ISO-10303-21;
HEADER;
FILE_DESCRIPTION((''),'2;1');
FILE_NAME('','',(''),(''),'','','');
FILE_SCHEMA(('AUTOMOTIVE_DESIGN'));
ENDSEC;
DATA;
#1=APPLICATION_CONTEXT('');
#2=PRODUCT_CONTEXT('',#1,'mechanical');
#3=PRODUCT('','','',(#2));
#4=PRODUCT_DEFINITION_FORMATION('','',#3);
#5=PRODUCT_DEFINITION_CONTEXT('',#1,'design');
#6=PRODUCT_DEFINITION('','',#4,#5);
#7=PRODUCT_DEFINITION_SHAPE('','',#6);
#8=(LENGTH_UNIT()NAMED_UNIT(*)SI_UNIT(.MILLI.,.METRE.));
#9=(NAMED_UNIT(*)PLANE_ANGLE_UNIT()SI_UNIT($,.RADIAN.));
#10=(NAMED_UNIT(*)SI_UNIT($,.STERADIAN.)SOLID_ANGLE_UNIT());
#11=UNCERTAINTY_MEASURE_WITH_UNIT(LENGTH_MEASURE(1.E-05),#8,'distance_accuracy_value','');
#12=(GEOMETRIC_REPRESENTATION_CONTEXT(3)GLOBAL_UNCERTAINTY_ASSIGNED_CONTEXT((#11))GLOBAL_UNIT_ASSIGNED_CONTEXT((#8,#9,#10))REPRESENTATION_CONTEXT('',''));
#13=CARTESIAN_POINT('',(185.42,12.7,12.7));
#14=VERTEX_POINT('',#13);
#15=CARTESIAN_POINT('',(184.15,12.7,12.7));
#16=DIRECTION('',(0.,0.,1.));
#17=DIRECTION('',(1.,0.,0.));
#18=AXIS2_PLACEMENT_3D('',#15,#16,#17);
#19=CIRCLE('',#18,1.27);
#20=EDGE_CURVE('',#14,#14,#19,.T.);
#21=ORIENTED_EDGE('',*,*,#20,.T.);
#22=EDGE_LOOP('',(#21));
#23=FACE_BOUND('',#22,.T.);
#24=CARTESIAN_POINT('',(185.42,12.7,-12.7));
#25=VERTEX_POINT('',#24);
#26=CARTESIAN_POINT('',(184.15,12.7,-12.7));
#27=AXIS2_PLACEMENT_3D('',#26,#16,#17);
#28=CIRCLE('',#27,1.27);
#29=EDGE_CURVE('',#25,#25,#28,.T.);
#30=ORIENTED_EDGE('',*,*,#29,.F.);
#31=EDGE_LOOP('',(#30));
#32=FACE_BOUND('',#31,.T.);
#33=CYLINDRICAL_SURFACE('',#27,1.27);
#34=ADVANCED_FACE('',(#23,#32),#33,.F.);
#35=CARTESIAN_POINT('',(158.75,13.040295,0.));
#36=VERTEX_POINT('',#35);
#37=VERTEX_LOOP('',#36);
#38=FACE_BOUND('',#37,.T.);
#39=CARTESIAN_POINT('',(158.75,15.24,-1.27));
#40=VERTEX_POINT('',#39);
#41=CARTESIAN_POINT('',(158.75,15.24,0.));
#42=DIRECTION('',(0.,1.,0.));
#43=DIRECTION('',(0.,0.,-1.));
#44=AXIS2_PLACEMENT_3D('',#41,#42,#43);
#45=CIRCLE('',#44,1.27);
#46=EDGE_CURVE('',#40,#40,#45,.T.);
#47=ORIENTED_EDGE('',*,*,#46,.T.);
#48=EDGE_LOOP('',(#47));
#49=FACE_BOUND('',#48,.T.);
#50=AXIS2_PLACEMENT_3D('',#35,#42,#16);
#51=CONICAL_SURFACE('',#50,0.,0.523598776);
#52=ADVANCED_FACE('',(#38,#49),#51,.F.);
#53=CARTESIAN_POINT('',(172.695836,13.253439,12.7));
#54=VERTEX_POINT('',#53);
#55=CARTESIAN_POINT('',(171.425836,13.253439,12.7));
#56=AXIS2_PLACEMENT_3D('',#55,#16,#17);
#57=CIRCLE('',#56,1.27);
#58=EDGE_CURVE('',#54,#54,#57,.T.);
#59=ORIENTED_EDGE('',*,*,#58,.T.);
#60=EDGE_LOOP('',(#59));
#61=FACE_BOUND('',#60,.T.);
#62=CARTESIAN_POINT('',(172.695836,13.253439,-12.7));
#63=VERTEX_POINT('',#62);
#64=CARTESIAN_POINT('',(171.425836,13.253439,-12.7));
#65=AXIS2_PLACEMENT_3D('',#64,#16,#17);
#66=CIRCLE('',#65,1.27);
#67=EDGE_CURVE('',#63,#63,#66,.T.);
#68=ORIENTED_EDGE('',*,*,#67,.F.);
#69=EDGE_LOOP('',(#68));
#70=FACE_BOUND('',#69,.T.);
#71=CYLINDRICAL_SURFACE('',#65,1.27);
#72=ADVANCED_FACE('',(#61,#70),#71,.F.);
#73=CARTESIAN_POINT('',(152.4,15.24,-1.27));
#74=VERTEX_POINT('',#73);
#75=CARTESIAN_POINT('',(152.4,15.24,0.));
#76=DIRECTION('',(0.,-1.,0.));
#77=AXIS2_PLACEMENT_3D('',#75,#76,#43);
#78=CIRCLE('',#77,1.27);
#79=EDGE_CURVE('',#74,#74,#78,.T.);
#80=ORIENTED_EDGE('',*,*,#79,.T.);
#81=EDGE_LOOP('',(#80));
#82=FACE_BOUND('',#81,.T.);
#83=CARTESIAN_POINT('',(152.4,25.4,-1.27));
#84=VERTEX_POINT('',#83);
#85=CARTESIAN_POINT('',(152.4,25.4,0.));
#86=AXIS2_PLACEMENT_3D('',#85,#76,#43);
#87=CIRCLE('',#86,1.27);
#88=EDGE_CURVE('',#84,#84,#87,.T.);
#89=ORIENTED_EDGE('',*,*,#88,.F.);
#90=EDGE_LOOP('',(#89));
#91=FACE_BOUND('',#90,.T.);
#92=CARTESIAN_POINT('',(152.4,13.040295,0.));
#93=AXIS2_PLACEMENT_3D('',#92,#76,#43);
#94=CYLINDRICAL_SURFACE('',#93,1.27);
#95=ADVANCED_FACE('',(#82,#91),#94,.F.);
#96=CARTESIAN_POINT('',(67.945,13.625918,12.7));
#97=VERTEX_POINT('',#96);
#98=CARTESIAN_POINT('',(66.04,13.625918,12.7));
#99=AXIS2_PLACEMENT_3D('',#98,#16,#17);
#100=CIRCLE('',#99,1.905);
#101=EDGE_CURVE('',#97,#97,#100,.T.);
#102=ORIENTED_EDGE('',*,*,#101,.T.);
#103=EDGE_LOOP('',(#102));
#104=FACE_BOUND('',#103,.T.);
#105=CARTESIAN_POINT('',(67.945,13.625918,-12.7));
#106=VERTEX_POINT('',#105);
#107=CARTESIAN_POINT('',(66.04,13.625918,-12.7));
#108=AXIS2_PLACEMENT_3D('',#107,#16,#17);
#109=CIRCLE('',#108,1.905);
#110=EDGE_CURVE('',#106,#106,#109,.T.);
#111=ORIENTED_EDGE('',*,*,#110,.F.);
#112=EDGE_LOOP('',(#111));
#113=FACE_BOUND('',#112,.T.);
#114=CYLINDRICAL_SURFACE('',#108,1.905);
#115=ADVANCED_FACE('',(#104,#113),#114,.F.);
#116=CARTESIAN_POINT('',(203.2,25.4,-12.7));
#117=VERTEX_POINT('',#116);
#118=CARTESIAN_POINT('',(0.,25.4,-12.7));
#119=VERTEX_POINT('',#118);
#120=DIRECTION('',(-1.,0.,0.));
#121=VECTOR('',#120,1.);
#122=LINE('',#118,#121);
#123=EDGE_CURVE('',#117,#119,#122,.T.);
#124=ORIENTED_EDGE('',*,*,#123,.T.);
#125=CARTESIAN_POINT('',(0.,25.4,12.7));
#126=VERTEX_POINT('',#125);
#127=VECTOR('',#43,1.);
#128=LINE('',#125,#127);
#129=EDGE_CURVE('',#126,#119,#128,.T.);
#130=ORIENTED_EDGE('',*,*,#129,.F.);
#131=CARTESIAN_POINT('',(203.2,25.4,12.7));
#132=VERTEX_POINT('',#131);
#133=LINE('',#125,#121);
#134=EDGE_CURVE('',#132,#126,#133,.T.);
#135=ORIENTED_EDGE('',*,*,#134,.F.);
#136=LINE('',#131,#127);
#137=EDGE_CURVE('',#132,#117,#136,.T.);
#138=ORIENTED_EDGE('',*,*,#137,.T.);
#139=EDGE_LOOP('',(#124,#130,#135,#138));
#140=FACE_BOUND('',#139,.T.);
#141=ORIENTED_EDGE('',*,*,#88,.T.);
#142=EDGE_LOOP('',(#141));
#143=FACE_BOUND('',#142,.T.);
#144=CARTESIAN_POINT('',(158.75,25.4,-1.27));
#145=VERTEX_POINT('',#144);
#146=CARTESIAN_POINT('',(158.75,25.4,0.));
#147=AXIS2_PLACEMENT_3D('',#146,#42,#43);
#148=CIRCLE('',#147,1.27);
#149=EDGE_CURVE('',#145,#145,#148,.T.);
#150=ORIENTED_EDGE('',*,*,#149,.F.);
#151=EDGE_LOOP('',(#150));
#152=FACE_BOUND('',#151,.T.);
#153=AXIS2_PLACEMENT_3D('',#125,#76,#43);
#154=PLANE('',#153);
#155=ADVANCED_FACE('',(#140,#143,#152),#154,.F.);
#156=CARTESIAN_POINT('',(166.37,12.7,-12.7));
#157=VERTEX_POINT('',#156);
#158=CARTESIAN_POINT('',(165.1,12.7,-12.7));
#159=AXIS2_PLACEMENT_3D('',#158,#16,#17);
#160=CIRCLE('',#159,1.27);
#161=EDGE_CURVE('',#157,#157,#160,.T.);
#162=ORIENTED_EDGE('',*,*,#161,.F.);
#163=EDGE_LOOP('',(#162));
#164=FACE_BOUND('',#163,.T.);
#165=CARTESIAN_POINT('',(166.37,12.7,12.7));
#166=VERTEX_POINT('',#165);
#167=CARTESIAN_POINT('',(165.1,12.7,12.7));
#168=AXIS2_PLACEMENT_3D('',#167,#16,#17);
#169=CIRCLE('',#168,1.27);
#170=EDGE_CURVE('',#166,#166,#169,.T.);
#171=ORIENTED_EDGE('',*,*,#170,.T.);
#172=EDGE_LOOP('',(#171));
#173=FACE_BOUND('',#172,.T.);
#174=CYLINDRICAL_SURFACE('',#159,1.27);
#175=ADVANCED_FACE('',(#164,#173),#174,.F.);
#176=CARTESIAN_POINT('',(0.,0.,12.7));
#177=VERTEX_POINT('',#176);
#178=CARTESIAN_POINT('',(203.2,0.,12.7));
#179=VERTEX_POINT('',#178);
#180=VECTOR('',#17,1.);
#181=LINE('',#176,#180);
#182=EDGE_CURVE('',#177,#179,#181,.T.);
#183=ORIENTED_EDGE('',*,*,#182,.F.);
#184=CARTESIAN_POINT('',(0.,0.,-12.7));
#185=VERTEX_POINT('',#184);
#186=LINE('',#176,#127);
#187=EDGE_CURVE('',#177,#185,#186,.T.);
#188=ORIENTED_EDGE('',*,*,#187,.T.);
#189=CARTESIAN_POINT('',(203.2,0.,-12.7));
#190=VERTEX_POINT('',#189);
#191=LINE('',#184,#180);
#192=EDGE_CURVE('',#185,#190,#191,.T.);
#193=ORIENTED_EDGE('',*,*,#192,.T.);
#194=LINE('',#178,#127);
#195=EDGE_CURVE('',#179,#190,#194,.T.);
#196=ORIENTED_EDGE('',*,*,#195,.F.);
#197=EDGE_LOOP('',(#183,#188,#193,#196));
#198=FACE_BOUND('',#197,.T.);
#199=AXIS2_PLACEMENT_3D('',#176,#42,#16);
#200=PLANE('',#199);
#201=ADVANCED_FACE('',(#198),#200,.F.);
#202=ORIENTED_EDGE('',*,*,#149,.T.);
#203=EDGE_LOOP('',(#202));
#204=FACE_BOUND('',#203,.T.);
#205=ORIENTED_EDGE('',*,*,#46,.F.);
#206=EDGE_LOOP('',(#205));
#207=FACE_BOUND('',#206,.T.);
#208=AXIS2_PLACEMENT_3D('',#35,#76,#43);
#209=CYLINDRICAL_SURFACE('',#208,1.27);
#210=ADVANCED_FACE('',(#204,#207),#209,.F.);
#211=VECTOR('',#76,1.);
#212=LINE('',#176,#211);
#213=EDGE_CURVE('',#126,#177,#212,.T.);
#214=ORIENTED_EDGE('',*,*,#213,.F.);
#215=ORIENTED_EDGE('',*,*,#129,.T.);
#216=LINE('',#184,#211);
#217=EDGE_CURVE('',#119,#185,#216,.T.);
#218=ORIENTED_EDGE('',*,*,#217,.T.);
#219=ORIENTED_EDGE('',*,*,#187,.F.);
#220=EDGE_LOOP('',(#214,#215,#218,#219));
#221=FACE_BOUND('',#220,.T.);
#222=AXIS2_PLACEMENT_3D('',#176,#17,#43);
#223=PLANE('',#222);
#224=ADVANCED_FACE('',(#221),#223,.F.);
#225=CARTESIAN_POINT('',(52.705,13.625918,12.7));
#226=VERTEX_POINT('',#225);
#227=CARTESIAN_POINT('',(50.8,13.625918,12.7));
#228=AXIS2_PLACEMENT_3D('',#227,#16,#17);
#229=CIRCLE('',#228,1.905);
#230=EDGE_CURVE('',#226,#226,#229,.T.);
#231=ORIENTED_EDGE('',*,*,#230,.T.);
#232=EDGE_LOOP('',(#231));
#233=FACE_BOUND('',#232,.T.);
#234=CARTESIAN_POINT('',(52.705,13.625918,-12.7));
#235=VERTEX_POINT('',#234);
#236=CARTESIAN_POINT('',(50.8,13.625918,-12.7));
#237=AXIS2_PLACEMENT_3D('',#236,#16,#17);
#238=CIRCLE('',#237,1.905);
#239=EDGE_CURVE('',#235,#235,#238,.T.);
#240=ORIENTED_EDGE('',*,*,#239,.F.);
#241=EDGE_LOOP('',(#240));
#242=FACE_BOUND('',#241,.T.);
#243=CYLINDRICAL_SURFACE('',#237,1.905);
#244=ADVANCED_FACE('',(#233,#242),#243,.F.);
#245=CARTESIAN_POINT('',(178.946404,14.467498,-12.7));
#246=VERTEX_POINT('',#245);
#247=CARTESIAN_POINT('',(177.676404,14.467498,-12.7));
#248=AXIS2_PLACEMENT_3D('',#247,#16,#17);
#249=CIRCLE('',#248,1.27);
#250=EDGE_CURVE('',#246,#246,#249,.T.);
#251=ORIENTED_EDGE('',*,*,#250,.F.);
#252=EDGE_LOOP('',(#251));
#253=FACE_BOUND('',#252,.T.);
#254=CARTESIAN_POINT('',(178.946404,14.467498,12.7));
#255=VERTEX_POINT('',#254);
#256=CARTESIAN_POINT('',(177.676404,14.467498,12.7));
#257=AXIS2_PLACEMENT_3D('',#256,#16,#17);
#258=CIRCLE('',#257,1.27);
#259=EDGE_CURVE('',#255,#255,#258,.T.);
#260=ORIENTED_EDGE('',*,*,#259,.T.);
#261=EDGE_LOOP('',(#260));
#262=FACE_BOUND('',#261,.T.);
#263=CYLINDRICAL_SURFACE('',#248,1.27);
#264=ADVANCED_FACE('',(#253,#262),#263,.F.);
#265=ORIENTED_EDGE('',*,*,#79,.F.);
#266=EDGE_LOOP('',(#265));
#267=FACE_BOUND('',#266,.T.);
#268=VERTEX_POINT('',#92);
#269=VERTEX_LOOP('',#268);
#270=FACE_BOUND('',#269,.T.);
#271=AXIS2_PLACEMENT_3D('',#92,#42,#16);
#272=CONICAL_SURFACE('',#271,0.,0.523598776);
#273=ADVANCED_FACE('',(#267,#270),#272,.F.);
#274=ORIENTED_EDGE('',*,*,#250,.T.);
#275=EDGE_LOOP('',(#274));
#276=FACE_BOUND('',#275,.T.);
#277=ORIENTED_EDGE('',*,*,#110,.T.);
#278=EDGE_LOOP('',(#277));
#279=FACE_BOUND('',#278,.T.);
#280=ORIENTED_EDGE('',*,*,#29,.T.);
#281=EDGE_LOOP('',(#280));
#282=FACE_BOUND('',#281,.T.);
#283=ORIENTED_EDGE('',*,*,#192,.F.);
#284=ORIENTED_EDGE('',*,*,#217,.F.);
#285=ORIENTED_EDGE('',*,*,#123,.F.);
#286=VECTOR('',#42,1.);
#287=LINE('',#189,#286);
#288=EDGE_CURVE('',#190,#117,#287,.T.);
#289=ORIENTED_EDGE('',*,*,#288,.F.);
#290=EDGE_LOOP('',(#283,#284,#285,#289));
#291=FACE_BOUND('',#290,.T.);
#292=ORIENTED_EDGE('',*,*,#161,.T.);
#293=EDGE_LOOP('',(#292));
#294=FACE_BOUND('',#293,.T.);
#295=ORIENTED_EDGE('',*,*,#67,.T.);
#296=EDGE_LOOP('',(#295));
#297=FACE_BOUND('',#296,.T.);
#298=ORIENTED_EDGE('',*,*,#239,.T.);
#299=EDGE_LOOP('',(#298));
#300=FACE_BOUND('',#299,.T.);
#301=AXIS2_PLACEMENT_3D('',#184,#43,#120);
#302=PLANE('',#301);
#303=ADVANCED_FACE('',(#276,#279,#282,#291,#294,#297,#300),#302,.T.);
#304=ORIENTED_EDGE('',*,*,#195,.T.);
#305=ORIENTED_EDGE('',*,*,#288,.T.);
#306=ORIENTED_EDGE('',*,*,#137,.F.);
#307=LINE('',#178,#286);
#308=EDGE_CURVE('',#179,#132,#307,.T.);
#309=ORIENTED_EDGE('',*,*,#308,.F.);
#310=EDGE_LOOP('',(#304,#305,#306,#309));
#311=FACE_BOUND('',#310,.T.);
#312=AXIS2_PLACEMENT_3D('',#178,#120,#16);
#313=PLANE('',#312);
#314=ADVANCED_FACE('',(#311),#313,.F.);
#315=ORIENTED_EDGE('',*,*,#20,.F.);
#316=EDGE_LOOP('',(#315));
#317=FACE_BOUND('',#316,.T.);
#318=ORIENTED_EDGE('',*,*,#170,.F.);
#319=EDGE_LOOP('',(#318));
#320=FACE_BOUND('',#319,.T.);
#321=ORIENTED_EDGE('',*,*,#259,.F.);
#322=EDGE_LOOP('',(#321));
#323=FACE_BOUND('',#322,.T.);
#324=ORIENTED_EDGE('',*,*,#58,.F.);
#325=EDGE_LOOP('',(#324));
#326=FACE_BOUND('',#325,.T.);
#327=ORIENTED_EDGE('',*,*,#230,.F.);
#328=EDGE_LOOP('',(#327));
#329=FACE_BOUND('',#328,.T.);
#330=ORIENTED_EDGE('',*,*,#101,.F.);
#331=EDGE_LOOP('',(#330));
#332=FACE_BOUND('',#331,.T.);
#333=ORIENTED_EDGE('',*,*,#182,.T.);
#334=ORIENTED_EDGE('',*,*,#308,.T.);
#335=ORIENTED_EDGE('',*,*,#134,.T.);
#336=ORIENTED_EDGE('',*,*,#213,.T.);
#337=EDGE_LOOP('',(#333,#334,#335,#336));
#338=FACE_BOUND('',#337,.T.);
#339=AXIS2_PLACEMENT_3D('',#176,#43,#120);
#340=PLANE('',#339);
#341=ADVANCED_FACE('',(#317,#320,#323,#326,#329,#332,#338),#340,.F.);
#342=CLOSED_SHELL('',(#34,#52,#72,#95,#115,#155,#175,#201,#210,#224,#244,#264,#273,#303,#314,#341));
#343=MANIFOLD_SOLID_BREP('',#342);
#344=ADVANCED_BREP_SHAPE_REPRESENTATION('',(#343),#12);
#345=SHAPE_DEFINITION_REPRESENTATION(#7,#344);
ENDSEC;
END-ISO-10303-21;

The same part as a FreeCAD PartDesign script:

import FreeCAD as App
import Part
import Sketcher
from FreeCAD import Vector
Q = App.Units.Quantity


def add_polygon(sketch, points):
    """Adds a closed chain of lines whose ends are joined by coincident constraints."""
    first, n = sketch.GeometryCount, len(points)
    for a, b in zip(points, points[1:] + points[:1]):
        sketch.addGeometry(Part.LineSegment(App.Vector(*a, 0), App.Vector(*b, 0)), False)
    for i in range(n):
        sketch.addConstraint(Sketcher.Constraint("Coincident", first + i, 2, first + (i + 1) % n, 1))

doc = App.newDocument("Part")
body = doc.addObject("PartDesign::Body", "Body")

# Sketch on XY plane
sketch1 = doc.addObject("Sketcher::SketchObject", "Sketch")
body.addObject(sketch1)
sketch1.AttachmentSupport = (doc.XY_Plane, [""])
sketch1.MapMode = "FlatFace"
add_polygon(sketch1, [(0, 25.4), (0, 0), (203.2, 0), (203.2, 25.4)])  # lines 0-3
sketch1.addConstraint(Sketcher.Constraint("Vertical", 0))
sketch1.addConstraint(Sketcher.Constraint("Horizontal", 1))
sketch1.addConstraint(Sketcher.Constraint("Vertical", 2))
sketch1.addConstraint(Sketcher.Constraint("Horizontal", 3))
sketch1.addConstraint(Sketcher.Constraint("Coincident", 0, 2, -1, 1))
sketch1.addConstraint(Sketcher.Constraint("DistanceX", 1, 1, 1, 2, Q("8 in")))
sketch1.addConstraint(Sketcher.Constraint("DistanceY", 0, 2, 0, 1, Q("1 in")))
pad1 = doc.addObject("PartDesign::Pad", "Pad")
body.addObject(pad1)
pad1.Profile = sketch1
pad1.Length = Q("1 in")
pad1.Midplane = True

# Sketch on XY plane
sketch2 = doc.addObject("Sketcher::SketchObject", "Sketch001")
body.addObject(sketch2)
sketch2.AttachmentSupport = (doc.XY_Plane, [""])
sketch2.MapMode = "FlatFace"
sketch2.AttachmentOffset = App.Placement(Vector(0, 0, 0.5 * 25.4), App.Rotation())
sketch2.addGeometry(Part.Circle(Vector(165.1, 12.7, 0), Vector(0, 0, 1), 1.27), False)
sketch2.addGeometry(Part.Circle(Vector(184.15, 12.7, 0), Vector(0, 0, 1), 1.27), False)
sketch2.addGeometry(Part.Circle(Vector(171.425836, 13.253439, 0), Vector(0, 0, 1), 1.27), False)
sketch2.addGeometry(Part.Circle(Vector(177.676404, 14.467498, 0), Vector(0, 0, 1), 1.27), False)
sketch2.addConstraint(Sketcher.Constraint("Equal", 0, 1))
sketch2.addConstraint(Sketcher.Constraint("Equal", 1, 2))
sketch2.addConstraint(Sketcher.Constraint("Equal", 2, 3))
sketch2.addConstraint(Sketcher.Constraint("Horizontal", 0, 3, 1, 3))
sketch2.addConstraint(Sketcher.Constraint("Diameter", 0, Q("0.1 in")))
sketch2.addConstraint(Sketcher.Constraint("DistanceX", -1, 1, 0, 3, Q("6.5 in")))
sketch2.addConstraint(Sketcher.Constraint("DistanceY", -1, 1, 0, 3, Q("0.5 in")))
sketch2.addConstraint(Sketcher.Constraint("DistanceX", -1, 1, 1, 3, Q("7.25 in")))
sketch2.addConstraint(Sketcher.Constraint("DistanceY", -1, 1, 3, 3, Q("14.467498 mm")))
sketch2.addConstraint(Sketcher.Constraint("DistanceY", -1, 1, 2, 3, Q("13.253439 mm")))
sketch2.addConstraint(Sketcher.Constraint("DistanceX", 2, 3, 3, 3, Q("6.250568 mm")))
sketch2.addConstraint(Sketcher.Constraint("DistanceX", -1, 1, 2, 3, Q("171.425836 mm")))
pocket1 = doc.addObject("PartDesign::Pocket", "Pocket")
body.addObject(pocket1)
pocket1.Profile = sketch2
pocket1.Type = "ThroughAll"

# Sketch on XY plane
sketch3 = doc.addObject("Sketcher::SketchObject", "Sketch002")
body.addObject(sketch3)
sketch3.AttachmentSupport = (doc.XY_Plane, [""])
sketch3.MapMode = "FlatFace"
add_polygon(sketch3, [(153.67, 25.4), (152.4, 25.4), (152.4, 13.040295), (153.67, 15.24)])  # lines 0-3
sketch3.addGeometry(Part.LineSegment(Vector(152.4, 13.040295, 0), Vector(152.4, 25.4, 0)), True)  # axis
sketch3.addConstraint(Sketcher.Constraint("Horizontal", 0))
sketch3.addConstraint(Sketcher.Constraint("Vertical", 1))
sketch3.addConstraint(Sketcher.Constraint("Vertical", 3))
sketch3.addConstraint(Sketcher.Constraint("Vertical", 4))
sketch3.addConstraint(Sketcher.Constraint("Coincident", 4, 1, 1, 2))
sketch3.addConstraint(Sketcher.Constraint("Horizontal", 3, 2, 4, 2))
sketch3.addConstraint(Sketcher.Constraint("DistanceY", 3, 1, 3, 2, Q("0.4 in")))
sketch3.addConstraint(Sketcher.Constraint("DistanceX", -1, 1, 0, 2, Q("6 in")))
sketch3.addConstraint(Sketcher.Constraint("DistanceY", -1, 1, 0, 2, Q("1 in")))
sketch3.addConstraint(Sketcher.Constraint("Angle", 2, Q("60 deg")))
sketch3.addConstraint(Sketcher.Constraint("Distance", 2, Q("0.1 in")))
groove = doc.addObject("PartDesign::Groove", "Groove")
body.addObject(groove)
groove.Profile = sketch3
groove.ReferenceAxis = (sketch3, ["Axis0"])
groove.Angle = 360
doc.recompute()

datumplane = doc.addObject("PartDesign::Plane", "DatumPlane")
body.addObject(datumplane)
datumplane.AttachmentSupport = (doc.YZ_Plane, [""])
datumplane.MapMode = "FlatFace"
datumplane.AttachmentOffset = App.Placement(Vector(0, 0, 6.125 * 25.4), App.Rotation())
mirrored = doc.addObject("PartDesign::Mirrored", "Mirrored")
body.addObject(mirrored)
mirrored.Originals = [groove]
mirrored.MirrorPlane = (datumplane, [""])
body.Tip = mirrored

# Sketch on XY plane
sketch4 = doc.addObject("Sketcher::SketchObject", "Sketch003")
body.addObject(sketch4)
sketch4.AttachmentSupport = (doc.XY_Plane, [""])
sketch4.MapMode = "FlatFace"
sketch4.AttachmentOffset = App.Placement(Vector(0, 0, 0.5 * 25.4), App.Rotation())
sketch4.addGeometry(Part.Circle(Vector(50.8, 13.625918, 0), Vector(0, 0, 1), 1.905), False)
sketch4.addGeometry(Part.Circle(Vector(66.04, 13.625918, 0), Vector(0, 0, 1), 1.905), False)
sketch4.addConstraint(Sketcher.Constraint("Equal", 0, 1))
sketch4.addConstraint(Sketcher.Constraint("Horizontal", 0, 3, 1, 3))
sketch4.addConstraint(Sketcher.Constraint("Diameter", 0, Q("0.15 in")))
sketch4.addConstraint(Sketcher.Constraint("DistanceX", -1, 1, 0, 3, Q("2 in")))
sketch4.addConstraint(Sketcher.Constraint("DistanceX", -1, 1, 1, 3, Q("2.6 in")))
sketch4.addConstraint(Sketcher.Constraint("DistanceY", -1, 1, 0, 3, Q("13.625918 mm")))
pocket2 = doc.addObject("PartDesign::Pocket", "Pocket001")
body.addObject(pocket2)
pocket2.Profile = sketch4
pocket2.Type = "ThroughAll"

doc.recompute()
